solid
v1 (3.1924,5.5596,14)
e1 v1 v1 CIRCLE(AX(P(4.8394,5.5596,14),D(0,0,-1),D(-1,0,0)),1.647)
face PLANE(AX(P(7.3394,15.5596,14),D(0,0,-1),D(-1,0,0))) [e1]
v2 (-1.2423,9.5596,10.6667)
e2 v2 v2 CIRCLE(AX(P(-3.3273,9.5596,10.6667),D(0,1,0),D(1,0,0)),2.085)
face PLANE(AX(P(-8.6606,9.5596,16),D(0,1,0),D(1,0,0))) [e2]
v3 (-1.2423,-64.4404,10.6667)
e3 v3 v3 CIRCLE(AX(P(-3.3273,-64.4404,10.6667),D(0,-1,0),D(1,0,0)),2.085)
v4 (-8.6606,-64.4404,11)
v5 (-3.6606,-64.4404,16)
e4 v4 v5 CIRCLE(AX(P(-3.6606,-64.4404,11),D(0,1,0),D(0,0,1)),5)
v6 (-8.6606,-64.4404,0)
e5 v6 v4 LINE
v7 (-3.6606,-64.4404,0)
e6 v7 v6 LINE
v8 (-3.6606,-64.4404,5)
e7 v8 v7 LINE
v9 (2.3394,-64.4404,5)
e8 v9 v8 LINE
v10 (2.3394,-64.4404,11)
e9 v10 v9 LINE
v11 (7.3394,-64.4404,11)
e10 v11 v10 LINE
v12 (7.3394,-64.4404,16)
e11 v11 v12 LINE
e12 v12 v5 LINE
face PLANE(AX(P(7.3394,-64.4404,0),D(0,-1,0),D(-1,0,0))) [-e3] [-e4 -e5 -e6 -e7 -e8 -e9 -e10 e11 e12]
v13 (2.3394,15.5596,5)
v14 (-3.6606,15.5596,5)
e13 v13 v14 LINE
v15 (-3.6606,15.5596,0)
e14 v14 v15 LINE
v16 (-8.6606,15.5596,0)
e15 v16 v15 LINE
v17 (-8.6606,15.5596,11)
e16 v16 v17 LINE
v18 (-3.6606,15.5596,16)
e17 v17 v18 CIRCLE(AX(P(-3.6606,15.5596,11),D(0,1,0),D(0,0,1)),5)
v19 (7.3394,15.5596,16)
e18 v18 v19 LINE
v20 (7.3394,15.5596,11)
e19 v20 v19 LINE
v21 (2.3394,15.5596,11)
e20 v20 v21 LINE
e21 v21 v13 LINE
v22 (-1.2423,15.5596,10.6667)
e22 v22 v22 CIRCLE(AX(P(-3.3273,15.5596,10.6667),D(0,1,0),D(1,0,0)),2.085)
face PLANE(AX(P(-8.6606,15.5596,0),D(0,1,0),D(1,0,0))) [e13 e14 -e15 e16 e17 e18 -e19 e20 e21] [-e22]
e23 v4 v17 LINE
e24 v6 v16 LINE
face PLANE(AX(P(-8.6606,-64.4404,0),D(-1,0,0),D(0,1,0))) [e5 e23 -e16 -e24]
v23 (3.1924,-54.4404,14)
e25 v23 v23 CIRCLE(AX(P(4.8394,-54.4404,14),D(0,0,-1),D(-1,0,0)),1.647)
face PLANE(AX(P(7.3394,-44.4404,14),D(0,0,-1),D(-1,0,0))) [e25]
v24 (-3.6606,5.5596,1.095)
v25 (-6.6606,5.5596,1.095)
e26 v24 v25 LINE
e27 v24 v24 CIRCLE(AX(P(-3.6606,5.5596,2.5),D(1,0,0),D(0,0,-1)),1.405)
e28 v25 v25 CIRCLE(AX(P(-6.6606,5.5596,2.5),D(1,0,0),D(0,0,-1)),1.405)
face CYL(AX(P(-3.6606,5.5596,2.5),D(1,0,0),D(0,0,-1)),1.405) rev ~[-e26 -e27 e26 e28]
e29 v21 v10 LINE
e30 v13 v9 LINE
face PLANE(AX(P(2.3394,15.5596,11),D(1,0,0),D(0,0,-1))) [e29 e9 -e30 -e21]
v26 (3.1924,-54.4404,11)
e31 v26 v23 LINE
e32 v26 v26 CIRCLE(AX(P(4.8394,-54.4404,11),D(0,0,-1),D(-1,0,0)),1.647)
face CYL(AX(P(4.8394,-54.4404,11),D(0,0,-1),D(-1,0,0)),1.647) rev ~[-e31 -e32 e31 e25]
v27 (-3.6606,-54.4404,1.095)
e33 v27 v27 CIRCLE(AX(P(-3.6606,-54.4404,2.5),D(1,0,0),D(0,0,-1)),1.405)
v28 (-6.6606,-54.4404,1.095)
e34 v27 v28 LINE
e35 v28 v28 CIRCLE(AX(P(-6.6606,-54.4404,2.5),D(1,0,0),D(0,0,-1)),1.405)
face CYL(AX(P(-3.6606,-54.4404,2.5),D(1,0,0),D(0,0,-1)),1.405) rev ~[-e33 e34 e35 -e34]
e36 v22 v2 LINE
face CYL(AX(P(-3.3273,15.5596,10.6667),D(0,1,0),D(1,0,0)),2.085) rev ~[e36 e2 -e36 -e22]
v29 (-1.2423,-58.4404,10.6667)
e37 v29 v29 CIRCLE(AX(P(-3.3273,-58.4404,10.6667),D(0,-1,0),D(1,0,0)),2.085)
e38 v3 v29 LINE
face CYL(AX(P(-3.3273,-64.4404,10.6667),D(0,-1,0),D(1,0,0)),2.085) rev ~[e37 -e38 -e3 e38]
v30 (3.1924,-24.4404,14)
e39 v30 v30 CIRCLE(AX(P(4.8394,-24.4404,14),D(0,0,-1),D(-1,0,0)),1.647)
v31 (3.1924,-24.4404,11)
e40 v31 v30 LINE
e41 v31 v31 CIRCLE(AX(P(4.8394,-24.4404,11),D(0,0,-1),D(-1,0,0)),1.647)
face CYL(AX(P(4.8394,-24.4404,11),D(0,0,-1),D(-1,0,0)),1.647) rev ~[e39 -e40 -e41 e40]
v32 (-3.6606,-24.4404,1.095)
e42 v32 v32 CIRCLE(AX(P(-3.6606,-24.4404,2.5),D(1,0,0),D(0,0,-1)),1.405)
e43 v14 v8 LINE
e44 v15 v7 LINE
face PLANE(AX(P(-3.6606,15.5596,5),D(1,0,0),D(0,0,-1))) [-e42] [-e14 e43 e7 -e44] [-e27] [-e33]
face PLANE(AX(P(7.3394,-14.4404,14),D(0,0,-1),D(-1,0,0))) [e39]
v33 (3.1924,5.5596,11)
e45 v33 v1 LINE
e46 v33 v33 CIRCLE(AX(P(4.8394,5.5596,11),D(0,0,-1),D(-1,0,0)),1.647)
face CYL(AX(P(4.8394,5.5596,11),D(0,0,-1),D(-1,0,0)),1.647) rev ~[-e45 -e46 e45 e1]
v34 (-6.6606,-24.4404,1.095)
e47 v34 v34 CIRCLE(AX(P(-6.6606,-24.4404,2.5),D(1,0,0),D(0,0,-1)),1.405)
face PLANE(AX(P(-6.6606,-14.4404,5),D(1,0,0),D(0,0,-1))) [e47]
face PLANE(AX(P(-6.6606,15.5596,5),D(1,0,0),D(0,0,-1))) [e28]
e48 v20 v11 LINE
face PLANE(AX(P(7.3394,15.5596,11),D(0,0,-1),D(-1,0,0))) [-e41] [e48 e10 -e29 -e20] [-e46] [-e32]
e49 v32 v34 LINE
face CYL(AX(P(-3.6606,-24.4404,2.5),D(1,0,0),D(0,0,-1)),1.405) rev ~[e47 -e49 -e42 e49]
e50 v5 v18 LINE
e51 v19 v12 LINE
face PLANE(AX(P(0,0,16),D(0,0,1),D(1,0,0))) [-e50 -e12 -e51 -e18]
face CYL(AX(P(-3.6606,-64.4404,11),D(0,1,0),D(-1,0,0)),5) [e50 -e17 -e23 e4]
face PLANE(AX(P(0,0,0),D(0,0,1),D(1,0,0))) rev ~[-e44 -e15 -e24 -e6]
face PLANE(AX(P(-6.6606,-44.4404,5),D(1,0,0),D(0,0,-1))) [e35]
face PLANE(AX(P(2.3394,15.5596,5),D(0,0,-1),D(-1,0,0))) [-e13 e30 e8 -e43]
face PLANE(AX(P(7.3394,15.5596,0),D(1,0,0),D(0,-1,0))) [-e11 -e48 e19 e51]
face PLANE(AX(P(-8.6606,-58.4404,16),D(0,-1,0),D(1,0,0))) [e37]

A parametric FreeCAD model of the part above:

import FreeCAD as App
import Part
import Sketcher

V = App.Vector
Q = App.Units.Quantity


def edges_at(feature, points):
    """Names of the edges that pass closest to the given points."""
    edges = feature.Shape.Edges
    near = lambda p: min(range(len(edges)), key=lambda i: edges[i].distToShape(Part.Vertex(*p))[0])
    return sorted({f"Edge{near(p) + 1}" for p in points})

doc = App.newDocument("Part")
body = doc.addObject("PartDesign::Body", "Body")

sketch1 = body.newObject("Sketcher::SketchObject", "Sketch")
sketch1.AttachmentSupport = (doc.getObject("XY_Plane"), [""])
sketch1.MapMode = "FlatFace"
sketch1.addGeometry([
    Part.LineSegment(V(7, 16, 0), V(-9, 16, 0)),
    Part.LineSegment(V(-9, 16, 0), V(-9, -64, 0)),
    Part.LineSegment(V(-9, -64, 0), V(7, -64, 0)),
    Part.LineSegment(V(7, -64, 0), V(7, 16, 0)),
], False)
sketch1.addConstraint([
    Sketcher.Constraint("Coincident", 0, 2, 1, 1),
    Sketcher.Constraint("Coincident", 1, 2, 2, 1),
    Sketcher.Constraint("Coincident", 2, 2, 3, 1),
    Sketcher.Constraint("Coincident", 3, 2, 0, 1),
    Sketcher.Constraint("Horizontal", 0),
    Sketcher.Constraint("Vertical", 1),
    Sketcher.Constraint("Horizontal", 2),
    Sketcher.Constraint("Vertical", 3),
    Sketcher.Constraint("DistanceX", 0, 2, 0, 1, Q("16 mm")),
    Sketcher.Constraint("DistanceY", 1, 2, 1, 1, Q("80 mm")),
    Sketcher.Constraint("DistanceX", 0, 2, -1, 1, Q("8.6606 mm")),
    Sketcher.Constraint("DistanceY", -1, 1, 0, 2, Q("15.5596 mm")),
])
pad1 = body.newObject("PartDesign::Pad", "Pad")
pad1.Profile = sketch1
pad1.Length = 16

sketch2 = body.newObject("Sketcher::SketchObject", "Sketch001")
sketch2.AttachmentSupport = (doc.getObject("XZ_Plane"), [""])
sketch2.MapMode = "FlatFace"
sketch2.AttachmentOffset = App.Placement(V(0, 0, -15.5596), App.Rotation())
sketch2.addGeometry([
    Part.LineSegment(V(7, 0, 0), V(-4, 0, 0)),
    Part.LineSegment(V(-4, 0, 0), V(-4, 5, 0)),
    Part.LineSegment(V(-4, 5, 0), V(2, 5, 0)),
    Part.LineSegment(V(2, 5, 0), V(2, 11, 0)),
    Part.LineSegment(V(2, 11, 0), V(7, 11, 0)),
    Part.LineSegment(V(7, 11, 0), V(7, 0, 0)),
], False)
sketch2.addConstraint([
    Sketcher.Constraint("Coincident", 0, 2, 1, 1),
    Sketcher.Constraint("Coincident", 1, 2, 2, 1),
    Sketcher.Constraint("Coincident", 2, 2, 3, 1),
    Sketcher.Constraint("Coincident", 3, 2, 4, 1),
    Sketcher.Constraint("Coincident", 4, 2, 5, 1),
    Sketcher.Constraint("Coincident", 5, 2, 0, 1),
    Sketcher.Constraint("Horizontal", 0),
    Sketcher.Constraint("Vertical", 1),
    Sketcher.Constraint("Horizontal", 2),
    Sketcher.Constraint("Vertical", 3),
    Sketcher.Constraint("Horizontal", 4),
    Sketcher.Constraint("Vertical", 5),
    Sketcher.Constraint("PointOnObject", 0, 2, -1),
    Sketcher.Constraint("Equal", 4, 1),
    Sketcher.Constraint("Equal", 2, 3),
    Sketcher.Constraint("DistanceX", 4, 1, 4, 2, Q("5 mm")),
    Sketcher.Constraint("DistanceX", 0, 2, 0, 1, Q("11 mm")),
    Sketcher.Constraint("DistanceX", 0, 2, -1, 1, Q("3.6606 mm")),
])
pocket1 = body.newObject("PartDesign::Pocket", "Pocket")
pocket1.Profile = sketch2
pocket1.Length = 80
pocket1.Reversed = True

sketch3 = body.newObject("Sketcher::SketchObject", "Sketch002")
sketch3.AttachmentSupport = (doc.getObject("XZ_Plane"), [""])
sketch3.MapMode = "FlatFace"
sketch3.AttachmentOffset = App.Placement(V(0, 0, -15.5596), App.Rotation())
sketch3.addGeometry(Part.Circle(V(-3.3, 10.7, 0), V(0, 0, 1), 2.1), False)
sketch3.addConstraint([
    Sketcher.Constraint("Diameter", 0, Q("4.17 mm")),
    Sketcher.Constraint("DistanceX", 0, 3, -1, 1, Q("3.3273 mm")),
    Sketcher.Constraint("DistanceY", -1, 1, 0, 3, Q("10.6667 mm")),
])
pocket2 = body.newObject("PartDesign::Pocket", "Pocket001")
pocket2.Profile = sketch3
pocket2.Length = 6
pocket2.Reversed = True

sketch4 = body.newObject("Sketcher::SketchObject", "Sketch003")
sketch4.AttachmentSupport = (doc.getObject("XZ_Plane"), [""])
sketch4.MapMode = "FlatFace"
sketch4.AttachmentOffset = App.Placement(V(0, 0, 64.4404), App.Rotation())
sketch4.addGeometry(Part.Circle(V(-3.3, 10.7, 0), V(0, 0, 1), 2.1), False)
sketch4.addConstraint([
    Sketcher.Constraint("Diameter", 0, Q("4.17 mm")),
    Sketcher.Constraint("DistanceX", 0, 3, -1, 1, Q("3.3273 mm")),
    Sketcher.Constraint("DistanceY", -1, 1, 0, 3, Q("10.6667 mm")),
])
pocket3 = body.newObject("PartDesign::Pocket", "Pocket002")
pocket3.Profile = sketch4
pocket3.Length = 6
doc.recompute()

fillet = body.newObject("PartDesign::Fillet", "Fillet")
fillet.Base = (pocket3, edges_at(pocket3, [(-8.661, -24.44, 16)]))
fillet.Radius = 5

sketch5 = body.newObject("Sketcher::SketchObject", "Sketch004")
sketch5.AttachmentSupport = (doc.getObject("YZ_Plane"), [""])
sketch5.MapMode = "FlatFace"
sketch5.AttachmentOffset = App.Placement(V(0, 0, -3.6606), App.Rotation())
sketch5.addGeometry(Part.Circle(V(5.6, 2.5, 0), V(0, 0, 1), 1.4), False)
sketch5.addConstraint([
    Sketcher.Constraint("Diameter", 0, Q("2.81 mm")),
    Sketcher.Constraint("DistanceY", -1, 1, 0, 3, Q("2.5 mm")),
    Sketcher.Constraint("DistanceX", -1, 1, 0, 3, Q("5.5596 mm")),
])
pocket4 = body.newObject("PartDesign::Pocket", "Pocket003")
pocket4.Profile = sketch5
pocket4.Length = 3
doc.recompute()

linearpattern = body.newObject("PartDesign::LinearPattern", "LinearPattern")
linearpattern.Originals = [pocket4]
linearpattern.Direction = (doc.getObject("Y_Axis"), [""])
linearpattern.Mode = "offset"
linearpattern.Offset = 30
linearpattern.Occurrences = 3
linearpattern.Reversed = True
body.Tip = linearpattern

sketch6 = body.newObject("Sketcher::SketchObject", "Sketch005")
sketch6.AttachmentSupport = (doc.getObject("XY_Plane"), [""])
sketch6.MapMode = "FlatFace"
sketch6.AttachmentOffset = App.Placement(V(0, 0, 11), App.Rotation())
sketch6.addGeometry(Part.Circle(V(4.8, 5.6, 0), V(0, 0, 1), 1.6), False)
sketch6.addConstraint([
    Sketcher.Constraint("Diameter", 0, Q("3.294 mm")),
    Sketcher.Constraint("DistanceX", -1, 1, 0, 3, Q("4.8394 mm")),
    Sketcher.Constraint("DistanceY", -1, 1, 0, 3, Q("5.5596 mm")),
])
pocket5 = body.newObject("PartDesign::Pocket", "Pocket004")
pocket5.Profile = sketch6
pocket5.Length = 3
pocket5.Reversed = True
doc.recompute()

linearpattern2 = body.newObject("PartDesign::LinearPattern", "LinearPattern001")
linearpattern2.Originals = [pocket5]
linearpattern2.Direction = (doc.getObject("Y_Axis"), [""])
linearpattern2.Mode = "offset"
linearpattern2.Offset = 30
linearpattern2.Occurrences = 3
linearpattern2.Reversed = True
body.Tip = linearpattern2

doc.recompute()
